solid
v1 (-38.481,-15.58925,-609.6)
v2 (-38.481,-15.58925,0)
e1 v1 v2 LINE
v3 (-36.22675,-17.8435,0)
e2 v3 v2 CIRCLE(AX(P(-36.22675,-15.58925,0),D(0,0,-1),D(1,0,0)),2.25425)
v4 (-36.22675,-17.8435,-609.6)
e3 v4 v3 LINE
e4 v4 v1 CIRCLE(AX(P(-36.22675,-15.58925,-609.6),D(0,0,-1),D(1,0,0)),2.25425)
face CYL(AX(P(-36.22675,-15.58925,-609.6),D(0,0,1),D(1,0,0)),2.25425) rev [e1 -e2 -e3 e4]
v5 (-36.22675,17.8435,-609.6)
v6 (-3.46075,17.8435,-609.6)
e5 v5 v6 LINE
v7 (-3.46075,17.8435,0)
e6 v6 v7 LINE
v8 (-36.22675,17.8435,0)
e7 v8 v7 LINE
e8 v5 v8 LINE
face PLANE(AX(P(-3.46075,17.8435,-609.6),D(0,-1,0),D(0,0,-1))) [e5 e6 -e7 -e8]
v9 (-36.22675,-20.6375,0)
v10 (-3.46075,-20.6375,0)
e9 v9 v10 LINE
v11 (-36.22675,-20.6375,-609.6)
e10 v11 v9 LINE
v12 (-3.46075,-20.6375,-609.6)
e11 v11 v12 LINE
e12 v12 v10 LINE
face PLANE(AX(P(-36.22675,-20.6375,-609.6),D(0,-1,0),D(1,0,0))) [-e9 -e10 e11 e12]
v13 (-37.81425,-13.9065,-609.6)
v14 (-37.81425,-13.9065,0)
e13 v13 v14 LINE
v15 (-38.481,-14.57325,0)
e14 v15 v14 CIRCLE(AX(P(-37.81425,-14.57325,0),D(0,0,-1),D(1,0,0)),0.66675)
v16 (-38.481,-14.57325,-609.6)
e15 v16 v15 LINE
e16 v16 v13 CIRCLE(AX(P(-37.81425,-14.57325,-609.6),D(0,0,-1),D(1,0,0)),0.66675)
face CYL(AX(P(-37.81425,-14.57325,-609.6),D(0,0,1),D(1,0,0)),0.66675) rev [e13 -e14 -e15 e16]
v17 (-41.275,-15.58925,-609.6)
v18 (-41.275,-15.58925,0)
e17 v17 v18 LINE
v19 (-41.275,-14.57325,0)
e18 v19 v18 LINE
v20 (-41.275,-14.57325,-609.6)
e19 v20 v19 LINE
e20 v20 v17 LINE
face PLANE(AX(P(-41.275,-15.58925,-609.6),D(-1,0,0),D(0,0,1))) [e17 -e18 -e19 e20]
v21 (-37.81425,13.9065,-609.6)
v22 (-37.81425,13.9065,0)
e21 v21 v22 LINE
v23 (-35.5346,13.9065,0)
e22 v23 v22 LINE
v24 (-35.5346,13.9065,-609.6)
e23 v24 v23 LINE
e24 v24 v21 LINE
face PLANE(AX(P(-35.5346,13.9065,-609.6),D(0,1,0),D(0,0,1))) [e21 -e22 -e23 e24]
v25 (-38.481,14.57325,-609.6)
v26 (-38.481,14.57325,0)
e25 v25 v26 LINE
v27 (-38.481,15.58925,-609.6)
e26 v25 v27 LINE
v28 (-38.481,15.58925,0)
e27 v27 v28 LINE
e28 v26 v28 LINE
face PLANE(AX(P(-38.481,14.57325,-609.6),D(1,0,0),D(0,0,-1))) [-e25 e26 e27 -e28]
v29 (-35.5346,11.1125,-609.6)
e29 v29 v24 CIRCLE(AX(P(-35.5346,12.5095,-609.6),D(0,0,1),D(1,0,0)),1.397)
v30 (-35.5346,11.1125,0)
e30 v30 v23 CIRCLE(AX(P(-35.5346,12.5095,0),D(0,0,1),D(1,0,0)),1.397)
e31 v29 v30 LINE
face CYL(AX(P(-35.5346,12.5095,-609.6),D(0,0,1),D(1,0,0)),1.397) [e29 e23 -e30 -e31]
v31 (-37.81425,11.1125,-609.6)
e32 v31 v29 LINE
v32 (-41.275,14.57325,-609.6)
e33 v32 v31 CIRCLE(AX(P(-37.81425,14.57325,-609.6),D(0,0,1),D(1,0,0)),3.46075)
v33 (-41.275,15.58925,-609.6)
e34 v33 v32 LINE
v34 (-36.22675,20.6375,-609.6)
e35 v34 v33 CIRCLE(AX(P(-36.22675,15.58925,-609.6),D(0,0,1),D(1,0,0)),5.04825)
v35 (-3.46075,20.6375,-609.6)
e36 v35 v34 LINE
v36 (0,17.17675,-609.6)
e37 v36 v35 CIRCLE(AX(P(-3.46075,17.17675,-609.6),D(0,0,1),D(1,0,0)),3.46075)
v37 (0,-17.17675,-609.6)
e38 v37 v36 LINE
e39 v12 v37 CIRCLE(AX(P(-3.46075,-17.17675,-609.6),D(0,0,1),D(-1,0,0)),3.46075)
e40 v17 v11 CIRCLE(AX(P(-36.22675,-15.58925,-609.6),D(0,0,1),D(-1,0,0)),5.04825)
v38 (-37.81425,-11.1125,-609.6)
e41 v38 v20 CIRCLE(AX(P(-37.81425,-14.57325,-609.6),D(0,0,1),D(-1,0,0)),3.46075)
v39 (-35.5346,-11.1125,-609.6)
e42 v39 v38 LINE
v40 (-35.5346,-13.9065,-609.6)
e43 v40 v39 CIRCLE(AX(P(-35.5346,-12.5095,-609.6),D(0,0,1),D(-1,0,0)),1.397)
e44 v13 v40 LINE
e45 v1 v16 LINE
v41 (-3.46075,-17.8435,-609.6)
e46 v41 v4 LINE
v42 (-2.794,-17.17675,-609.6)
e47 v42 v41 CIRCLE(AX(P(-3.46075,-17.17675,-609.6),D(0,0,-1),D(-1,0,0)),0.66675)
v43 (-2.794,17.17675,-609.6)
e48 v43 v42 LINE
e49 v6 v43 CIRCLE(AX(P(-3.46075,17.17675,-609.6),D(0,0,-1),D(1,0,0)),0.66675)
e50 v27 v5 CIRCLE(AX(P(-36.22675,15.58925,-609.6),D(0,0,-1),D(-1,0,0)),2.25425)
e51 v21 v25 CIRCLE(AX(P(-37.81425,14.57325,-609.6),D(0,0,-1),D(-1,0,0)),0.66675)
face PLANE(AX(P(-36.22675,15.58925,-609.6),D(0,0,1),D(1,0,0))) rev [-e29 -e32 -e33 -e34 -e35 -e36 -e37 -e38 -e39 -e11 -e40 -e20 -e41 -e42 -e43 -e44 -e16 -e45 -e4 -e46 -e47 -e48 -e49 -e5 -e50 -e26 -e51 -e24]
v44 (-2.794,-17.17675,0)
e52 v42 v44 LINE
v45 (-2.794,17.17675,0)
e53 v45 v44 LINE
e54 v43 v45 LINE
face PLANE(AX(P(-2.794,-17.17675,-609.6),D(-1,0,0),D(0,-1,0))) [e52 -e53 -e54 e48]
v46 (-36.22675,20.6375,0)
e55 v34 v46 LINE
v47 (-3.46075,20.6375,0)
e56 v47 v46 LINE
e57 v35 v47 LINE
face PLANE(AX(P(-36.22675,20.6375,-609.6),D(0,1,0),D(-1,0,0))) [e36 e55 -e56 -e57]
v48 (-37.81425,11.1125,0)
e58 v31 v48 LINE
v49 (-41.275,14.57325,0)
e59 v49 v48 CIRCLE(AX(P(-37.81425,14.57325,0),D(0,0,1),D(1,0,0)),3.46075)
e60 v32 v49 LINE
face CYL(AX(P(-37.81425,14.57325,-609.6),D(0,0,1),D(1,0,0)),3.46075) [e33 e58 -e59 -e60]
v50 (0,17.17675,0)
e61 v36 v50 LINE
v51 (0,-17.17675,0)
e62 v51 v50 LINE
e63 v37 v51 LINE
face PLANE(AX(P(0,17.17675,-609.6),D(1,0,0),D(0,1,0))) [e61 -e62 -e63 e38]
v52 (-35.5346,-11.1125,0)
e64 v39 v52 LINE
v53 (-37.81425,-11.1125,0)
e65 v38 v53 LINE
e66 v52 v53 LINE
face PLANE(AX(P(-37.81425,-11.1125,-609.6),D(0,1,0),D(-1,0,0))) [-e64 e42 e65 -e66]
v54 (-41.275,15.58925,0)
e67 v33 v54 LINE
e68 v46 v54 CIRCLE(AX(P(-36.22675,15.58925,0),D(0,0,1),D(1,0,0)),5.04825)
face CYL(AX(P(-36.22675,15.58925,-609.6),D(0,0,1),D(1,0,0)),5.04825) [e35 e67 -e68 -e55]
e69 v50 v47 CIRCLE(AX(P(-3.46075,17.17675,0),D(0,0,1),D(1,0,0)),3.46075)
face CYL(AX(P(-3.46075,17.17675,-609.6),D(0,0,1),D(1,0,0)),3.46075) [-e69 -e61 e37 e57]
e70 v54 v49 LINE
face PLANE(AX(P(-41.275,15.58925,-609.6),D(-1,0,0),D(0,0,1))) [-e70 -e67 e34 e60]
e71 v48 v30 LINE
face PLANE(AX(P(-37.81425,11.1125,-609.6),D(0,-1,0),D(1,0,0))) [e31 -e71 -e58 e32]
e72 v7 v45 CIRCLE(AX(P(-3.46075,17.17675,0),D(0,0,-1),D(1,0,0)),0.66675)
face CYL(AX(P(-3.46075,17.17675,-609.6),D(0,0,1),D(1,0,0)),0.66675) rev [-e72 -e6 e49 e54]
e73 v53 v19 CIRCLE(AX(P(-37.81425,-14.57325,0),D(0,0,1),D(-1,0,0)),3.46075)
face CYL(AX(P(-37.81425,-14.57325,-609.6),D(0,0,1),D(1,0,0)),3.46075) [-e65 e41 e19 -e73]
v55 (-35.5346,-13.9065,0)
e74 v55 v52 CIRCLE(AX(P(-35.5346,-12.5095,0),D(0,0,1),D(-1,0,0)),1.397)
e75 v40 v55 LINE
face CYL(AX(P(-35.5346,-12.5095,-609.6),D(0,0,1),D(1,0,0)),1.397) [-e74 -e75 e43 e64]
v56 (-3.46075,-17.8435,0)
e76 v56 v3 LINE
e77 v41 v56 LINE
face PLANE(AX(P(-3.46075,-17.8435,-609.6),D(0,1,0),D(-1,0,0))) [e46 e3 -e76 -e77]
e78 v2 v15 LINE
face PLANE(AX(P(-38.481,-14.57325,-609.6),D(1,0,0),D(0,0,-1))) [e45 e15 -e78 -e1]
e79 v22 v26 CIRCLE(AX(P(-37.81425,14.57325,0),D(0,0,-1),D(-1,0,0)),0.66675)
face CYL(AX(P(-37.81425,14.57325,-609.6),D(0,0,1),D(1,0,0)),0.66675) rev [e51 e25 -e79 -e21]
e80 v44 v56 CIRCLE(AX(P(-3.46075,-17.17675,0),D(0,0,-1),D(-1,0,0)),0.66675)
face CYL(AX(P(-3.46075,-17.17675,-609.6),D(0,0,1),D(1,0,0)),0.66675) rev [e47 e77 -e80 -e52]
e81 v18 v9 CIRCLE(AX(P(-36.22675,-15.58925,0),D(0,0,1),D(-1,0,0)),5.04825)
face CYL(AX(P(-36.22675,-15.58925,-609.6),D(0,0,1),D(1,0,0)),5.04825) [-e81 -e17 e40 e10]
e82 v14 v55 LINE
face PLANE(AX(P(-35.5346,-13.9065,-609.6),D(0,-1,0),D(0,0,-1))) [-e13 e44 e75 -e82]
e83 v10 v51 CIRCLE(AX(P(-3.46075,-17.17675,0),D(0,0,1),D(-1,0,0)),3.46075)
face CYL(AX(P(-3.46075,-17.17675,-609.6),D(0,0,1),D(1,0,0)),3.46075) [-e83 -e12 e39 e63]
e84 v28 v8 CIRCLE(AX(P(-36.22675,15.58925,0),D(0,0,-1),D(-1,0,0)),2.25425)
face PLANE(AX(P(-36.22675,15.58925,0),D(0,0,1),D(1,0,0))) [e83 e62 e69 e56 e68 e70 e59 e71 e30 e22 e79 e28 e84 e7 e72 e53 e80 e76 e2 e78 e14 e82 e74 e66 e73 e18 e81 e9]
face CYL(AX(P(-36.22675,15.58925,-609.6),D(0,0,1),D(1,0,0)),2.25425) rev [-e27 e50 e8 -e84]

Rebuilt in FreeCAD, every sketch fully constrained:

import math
import FreeCAD as App
import Part
import Sketcher
Q = App.Units.Quantity

doc = App.newDocument("Part")
params = doc.addObject("Spreadsheet::Sheet", "Params")
for row, (alias, value) in enumerate([
    ("sketch1_radius", "0.055 in"),
    ("sketch1_width", "1.29 in"),
    ("sketch1_height", "0.04 in"),
    ("pad1_length", "24 in"),
], start=1):
    params.set(f"A{row}", alias)
    params.set(f"B{row}", "=" + value)
    params.setAlias(f"B{row}", alias)

body = doc.addObject("PartDesign::Body", "Body")

sketch1 = body.newObject("Sketcher::SketchObject", "Sketch")
sketch1.AttachmentSupport = (doc.getObject("XY_Plane"), [""])
sketch1.MapMode = "FlatFace"
sketch1.addGeometry([
    Part.LineSegment(App.Vector(-3.5, 20.6, 0), App.Vector(-36.2, 20.6, 0)),
    Part.ArcOfCircle(Part.Circle(App.Vector(-36.2, 15.6, 0), App.Vector(0, 0, 1), 5), math.radians(90), math.radians(180)),
    Part.LineSegment(App.Vector(-41.3, 15.6, 0), App.Vector(-41.3, 14.6, 0)),
    Part.ArcOfCircle(Part.Circle(App.Vector(-37.8, 14.6, 0), App.Vector(0, 0, 1), 3.5), math.radians(180), math.radians(270)),
    Part.LineSegment(App.Vector(-37.8, 11.1, 0), App.Vector(-35.5, 11.1, 0)),
    Part.ArcOfCircle(Part.Circle(App.Vector(-35.5, 12.5, 0), App.Vector(0, 0, 1), 1.4), math.radians(-90), math.radians(90)),
    Part.LineSegment(App.Vector(-35.5, 13.9, 0), App.Vector(-37.8, 13.9, 0)),
    Part.ArcOfCircle(Part.Circle(App.Vector(-37.8, 14.6, 0), App.Vector(0, 0, 1), 0.7), math.radians(-180), math.radians(-90)),
    Part.LineSegment(App.Vector(-38.5, 14.6, 0), App.Vector(-38.5, 15.6, 0)),
    Part.ArcOfCircle(Part.Circle(App.Vector(-36.2, 15.6, 0), App.Vector(0, 0, 1), 2.3), math.radians(90), math.radians(180)),
    Part.LineSegment(App.Vector(-36.2, 17.8, 0), App.Vector(-3.5, 17.8, 0)),
    Part.ArcOfCircle(Part.Circle(App.Vector(-3.5, 17.2, 0), App.Vector(0, 0, 1), 0.7), math.radians(0), math.radians(90)),
    Part.LineSegment(App.Vector(-2.8, 17.2, 0), App.Vector(-2.8, -17.2, 0)),
    Part.ArcOfCircle(Part.Circle(App.Vector(-3.5, -17.2, 0), App.Vector(0, 0, 1), 0.7), math.radians(-90), math.radians(0)),
    Part.LineSegment(App.Vector(-3.5, -17.8, 0), App.Vector(-36.2, -17.8, 0)),
    Part.ArcOfCircle(Part.Circle(App.Vector(-36.2, -15.6, 0), App.Vector(0, 0, 1), 2.3), math.radians(-180), math.radians(-90)),
    Part.LineSegment(App.Vector(-38.5, -15.6, 0), App.Vector(-38.5, -14.6, 0)),
    Part.ArcOfCircle(Part.Circle(App.Vector(-37.8, -14.6, 0), App.Vector(0, 0, 1), 0.7), math.radians(90), math.radians(180)),
    Part.LineSegment(App.Vector(-37.8, -13.9, 0), App.Vector(-35.5, -13.9, 0)),
    Part.ArcOfCircle(Part.Circle(App.Vector(-35.5, -12.5, 0), App.Vector(0, 0, 1), 1.4), math.radians(-90), math.radians(90)),
    Part.LineSegment(App.Vector(-35.5, -11.1, 0), App.Vector(-37.8, -11.1, 0)),
    Part.ArcOfCircle(Part.Circle(App.Vector(-37.8, -14.6, 0), App.Vector(0, 0, 1), 3.5), math.radians(90), math.radians(180)),
    Part.LineSegment(App.Vector(-41.3, -14.6, 0), App.Vector(-41.3, -15.6, 0)),
    Part.ArcOfCircle(Part.Circle(App.Vector(-36.2, -15.6, 0), App.Vector(0, 0, 1), 5), math.radians(180), math.radians(270)),
    Part.LineSegment(App.Vector(-36.2, -20.6, 0), App.Vector(-3.5, -20.6, 0)),
    Part.ArcOfCircle(Part.Circle(App.Vector(-3.5, -17.2, 0), App.Vector(0, 0, 1), 3.5), math.radians(-90), math.radians(0)),
    Part.LineSegment(App.Vector(0, -17.2, 0), App.Vector(0, 17.2, 0)),
    Part.ArcOfCircle(Part.Circle(App.Vector(-3.5, 17.2, 0), App.Vector(0, 0, 1), 3.5), math.radians(0), math.radians(90)),
], False)
sketch1.addConstraint([
    Sketcher.Constraint("Tangent", 0, 2, 1, 1),
    Sketcher.Constraint("Tangent", 1, 2, 2, 1),
    Sketcher.Constraint("Tangent", 2, 2, 3, 1),
    Sketcher.Constraint("Tangent", 3, 2, 4, 1),
    Sketcher.Constraint("Tangent", 4, 2, 5, 1),
    Sketcher.Constraint("Tangent", 5, 2, 6, 1),
    Sketcher.Constraint("Tangent", 6, 2, 7, 2),
    Sketcher.Constraint("Tangent", 7, 1, 8, 1),
    Sketcher.Constraint("Tangent", 8, 2, 9, 2),
    Sketcher.Constraint("Tangent", 9, 1, 10, 1),
    Sketcher.Constraint("Tangent", 10, 2, 11, 2),
    Sketcher.Constraint("Tangent", 11, 1, 12, 1),
    Sketcher.Constraint("Tangent", 12, 2, 13, 2),
    Sketcher.Constraint("Tangent", 13, 1, 14, 1),
    Sketcher.Constraint("Tangent", 14, 2, 15, 2),
    Sketcher.Constraint("Tangent", 15, 1, 16, 1),
    Sketcher.Constraint("Tangent", 16, 2, 17, 2),
    Sketcher.Constraint("Tangent", 17, 1, 18, 1),
    Sketcher.Constraint("Tangent", 18, 2, 19, 1),
    Sketcher.Constraint("Tangent", 19, 2, 20, 1),
    Sketcher.Constraint("Tangent", 20, 2, 21, 1),
    Sketcher.Constraint("Tangent", 21, 2, 22, 1),
    Sketcher.Constraint("Tangent", 22, 2, 23, 1),
    Sketcher.Constraint("Tangent", 23, 2, 24, 1),
    Sketcher.Constraint("Tangent", 24, 2, 25, 1),
    Sketcher.Constraint("Tangent", 25, 2, 26, 1),
    Sketcher.Constraint("Tangent", 26, 2, 27, 1),
    Sketcher.Constraint("Tangent", 27, 2, 0, 1),
    Sketcher.Constraint("Horizontal", 0),
    Sketcher.Constraint("Vertical", 2),
    Sketcher.Constraint("Horizontal", 4),
    Sketcher.Constraint("Horizontal", 6),
    Sketcher.Constraint("Vertical", 8),
    Sketcher.Constraint("Horizontal", 10),
    Sketcher.Constraint("Vertical", 12),
    Sketcher.Constraint("Horizontal", 14),
    Sketcher.Constraint("Vertical", 16),
    Sketcher.Constraint("Horizontal", 18),
    Sketcher.Constraint("Horizontal", 20),
    Sketcher.Constraint("Vertical", 22),
    Sketcher.Constraint("Horizontal", 24),
    Sketcher.Constraint("Vertical", 26),
    Sketcher.Constraint("Coincident", 7, 3, 3, 3),
    Sketcher.Constraint("Coincident", 9, 3, 1, 3),
    Sketcher.Constraint("Coincident", 21, 3, 17, 3),
    Sketcher.Constraint("Coincident", 23, 3, 15, 3),
    Sketcher.Constraint("Coincident", 25, 3, 13, 3),
    Sketcher.Constraint("Coincident", 27, 3, 11, 3),
    Sketcher.Constraint("Equal", 7, 11),
    Sketcher.Constraint("Equal", 11, 13),
    Sketcher.Constraint("Equal", 9, 15),
    Sketcher.Constraint("Equal", 13, 17),
    Sketcher.Constraint("Symmetric", 25, 2, 26, 2, -1, 1),
    Sketcher.Constraint("Symmetric", 3, 3, 17, 3, -1),
    Sketcher.Constraint("Vertical", 5, 3, 19, 3),
    Sketcher.Constraint("Radius", 5, Q("0.055 in")),
    Sketcher.Constraint("DistanceX", 0, 2, 0, 1, Q("1.29 in")),
    Sketcher.Constraint("DistanceY", 2, 2, 2, 1, Q("0.04 in")),
    Sketcher.Constraint("DistanceY", 13, 3, 9, 3, Q("1.29 in")),
    Sketcher.Constraint("DistanceY", 5, 3, 0, 2, Q("0.32 in")),
    Sketcher.Constraint("DistanceY", 12, 2, 12, 1, Q("1.3525 in")),
    Sketcher.Constraint("DistanceX", 5, 3, -1, 1, Q("1.399 in")),
])
sketch1.setExpression("Constraints[55]", "Params.sketch1_radius")
sketch1.setExpression("Constraints[56]", "Params.sketch1_width")
sketch1.setExpression("Constraints[57]", "Params.sketch1_height")
pad1 = body.newObject("PartDesign::Pad", "Pad")
pad1.Profile = sketch1
pad1.setExpression("Length", "Params.pad1_length")
pad1.Reversed = True

doc.recompute()
